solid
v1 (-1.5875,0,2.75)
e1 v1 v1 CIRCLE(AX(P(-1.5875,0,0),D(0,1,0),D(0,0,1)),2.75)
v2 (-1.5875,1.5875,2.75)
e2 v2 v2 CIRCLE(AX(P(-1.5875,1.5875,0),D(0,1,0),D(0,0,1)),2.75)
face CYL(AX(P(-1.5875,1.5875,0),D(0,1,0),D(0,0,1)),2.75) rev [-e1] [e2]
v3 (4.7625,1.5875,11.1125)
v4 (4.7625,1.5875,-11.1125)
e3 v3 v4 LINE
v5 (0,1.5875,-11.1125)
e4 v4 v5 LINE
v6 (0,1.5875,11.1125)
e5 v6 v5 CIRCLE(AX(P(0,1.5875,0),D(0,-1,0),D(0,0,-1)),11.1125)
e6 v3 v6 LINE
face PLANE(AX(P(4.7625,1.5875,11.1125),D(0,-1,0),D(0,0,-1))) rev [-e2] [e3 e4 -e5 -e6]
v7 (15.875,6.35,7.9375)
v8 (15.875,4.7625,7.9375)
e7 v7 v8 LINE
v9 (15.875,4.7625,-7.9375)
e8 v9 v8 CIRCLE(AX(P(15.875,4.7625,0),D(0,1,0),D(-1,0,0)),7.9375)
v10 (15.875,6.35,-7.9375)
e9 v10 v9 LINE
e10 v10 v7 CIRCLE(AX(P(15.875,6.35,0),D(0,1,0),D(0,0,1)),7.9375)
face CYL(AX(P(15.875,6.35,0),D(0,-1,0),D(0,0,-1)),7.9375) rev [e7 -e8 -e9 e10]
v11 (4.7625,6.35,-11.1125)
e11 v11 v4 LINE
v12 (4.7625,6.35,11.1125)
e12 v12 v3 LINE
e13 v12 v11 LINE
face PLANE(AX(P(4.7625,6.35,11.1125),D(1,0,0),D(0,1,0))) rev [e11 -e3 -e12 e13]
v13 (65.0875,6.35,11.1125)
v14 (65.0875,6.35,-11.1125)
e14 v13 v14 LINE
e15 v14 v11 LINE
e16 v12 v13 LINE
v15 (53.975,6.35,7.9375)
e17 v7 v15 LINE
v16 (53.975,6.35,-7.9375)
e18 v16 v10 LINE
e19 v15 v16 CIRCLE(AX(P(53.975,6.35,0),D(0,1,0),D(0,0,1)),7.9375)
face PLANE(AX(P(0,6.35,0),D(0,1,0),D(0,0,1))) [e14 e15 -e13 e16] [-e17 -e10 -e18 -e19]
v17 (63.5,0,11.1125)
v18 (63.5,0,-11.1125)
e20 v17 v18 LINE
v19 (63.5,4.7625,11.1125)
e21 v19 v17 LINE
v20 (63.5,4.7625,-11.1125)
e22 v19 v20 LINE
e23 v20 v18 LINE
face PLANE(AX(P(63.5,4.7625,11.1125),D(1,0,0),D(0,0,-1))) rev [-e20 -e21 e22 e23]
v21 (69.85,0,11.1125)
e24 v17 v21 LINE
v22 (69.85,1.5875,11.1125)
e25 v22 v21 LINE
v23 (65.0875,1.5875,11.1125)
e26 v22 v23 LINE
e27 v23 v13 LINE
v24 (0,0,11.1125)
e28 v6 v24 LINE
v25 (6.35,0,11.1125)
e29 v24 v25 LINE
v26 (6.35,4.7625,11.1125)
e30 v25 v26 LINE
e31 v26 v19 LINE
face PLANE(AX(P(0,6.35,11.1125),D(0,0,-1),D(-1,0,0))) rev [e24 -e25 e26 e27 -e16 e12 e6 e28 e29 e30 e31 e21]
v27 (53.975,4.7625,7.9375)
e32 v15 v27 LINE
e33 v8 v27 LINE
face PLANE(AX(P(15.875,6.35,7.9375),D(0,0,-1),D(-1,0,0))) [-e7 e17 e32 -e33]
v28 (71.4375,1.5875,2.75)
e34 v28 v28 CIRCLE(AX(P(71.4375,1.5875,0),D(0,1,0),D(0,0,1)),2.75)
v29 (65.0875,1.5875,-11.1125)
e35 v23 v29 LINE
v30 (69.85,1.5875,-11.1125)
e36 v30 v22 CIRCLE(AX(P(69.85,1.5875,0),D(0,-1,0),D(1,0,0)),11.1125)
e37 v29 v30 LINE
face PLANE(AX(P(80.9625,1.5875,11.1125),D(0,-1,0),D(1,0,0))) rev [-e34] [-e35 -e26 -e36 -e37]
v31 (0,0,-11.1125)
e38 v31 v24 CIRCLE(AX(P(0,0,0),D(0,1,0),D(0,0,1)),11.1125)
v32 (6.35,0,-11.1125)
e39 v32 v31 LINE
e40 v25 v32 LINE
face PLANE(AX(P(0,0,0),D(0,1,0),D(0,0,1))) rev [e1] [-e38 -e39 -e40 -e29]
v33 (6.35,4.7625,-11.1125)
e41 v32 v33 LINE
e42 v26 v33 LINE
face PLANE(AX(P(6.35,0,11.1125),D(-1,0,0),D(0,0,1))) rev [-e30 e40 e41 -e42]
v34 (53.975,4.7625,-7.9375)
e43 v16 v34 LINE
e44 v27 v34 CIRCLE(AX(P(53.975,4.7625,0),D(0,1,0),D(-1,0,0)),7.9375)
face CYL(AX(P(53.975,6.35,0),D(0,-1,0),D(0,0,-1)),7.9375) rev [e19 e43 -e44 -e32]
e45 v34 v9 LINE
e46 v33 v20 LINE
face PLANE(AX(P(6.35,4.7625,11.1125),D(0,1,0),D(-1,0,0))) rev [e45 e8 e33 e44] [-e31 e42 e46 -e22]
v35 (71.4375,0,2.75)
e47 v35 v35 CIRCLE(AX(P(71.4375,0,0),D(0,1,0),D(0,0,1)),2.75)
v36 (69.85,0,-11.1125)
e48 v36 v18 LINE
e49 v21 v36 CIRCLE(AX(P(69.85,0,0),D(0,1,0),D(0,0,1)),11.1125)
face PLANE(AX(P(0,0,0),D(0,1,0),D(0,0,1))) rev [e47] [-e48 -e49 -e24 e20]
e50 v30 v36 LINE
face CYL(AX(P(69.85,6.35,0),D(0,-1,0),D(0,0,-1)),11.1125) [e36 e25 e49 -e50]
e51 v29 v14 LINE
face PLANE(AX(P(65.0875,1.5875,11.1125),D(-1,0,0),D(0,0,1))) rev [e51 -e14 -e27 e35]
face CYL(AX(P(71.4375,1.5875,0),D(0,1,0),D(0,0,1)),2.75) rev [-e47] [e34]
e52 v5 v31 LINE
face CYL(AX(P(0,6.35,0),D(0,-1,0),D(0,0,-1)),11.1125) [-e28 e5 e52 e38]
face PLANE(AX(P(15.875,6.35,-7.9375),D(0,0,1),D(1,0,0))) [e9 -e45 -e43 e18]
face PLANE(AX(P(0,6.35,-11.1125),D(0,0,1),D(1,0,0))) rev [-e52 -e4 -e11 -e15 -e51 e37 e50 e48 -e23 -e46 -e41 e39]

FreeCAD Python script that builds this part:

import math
import FreeCAD as App
import Part
import Sketcher

V = App.Vector
Q = App.Units.Quantity

doc = App.newDocument("Part")
body = doc.addObject("PartDesign::Body", "Body")

# Sketch on XZ plane
sketch1 = body.newObject("Sketcher::SketchObject", "Sketch")
sketch1.AttachmentSupport = (doc.getObject("XZ_Plane"), [""])
sketch1.MapMode = "FlatFace"
sketch1.addGeometry(Part.LineSegment(V(69.85, -11.1125, 0), V(0, -11.1125, 0)), False)
sketch1.addGeometry(Part.ArcOfCircle(Part.Circle(V(0, 0, 0), V(0, 0, 1), 11.1125), math.radians(90), math.radians(270)), False)
sketch1.addGeometry(Part.LineSegment(V(0, 11.1125, 0), V(69.85, 11.1125, 0)), False)
sketch1.addGeometry(Part.ArcOfCircle(Part.Circle(V(69.85, 0, 0), V(0, 0, 1), 11.1125), math.radians(-90), math.radians(90)), False)
sketch1.addGeometry(Part.LineSegment(V(15.875, -7.9375, 0), V(53.975, -7.9375, 0)), False)
sketch1.addGeometry(Part.ArcOfCircle(Part.Circle(V(53.975, 0, 0), V(0, 0, 1), 7.9375), math.radians(-90), math.radians(90)), False)
sketch1.addGeometry(Part.LineSegment(V(53.975, 7.9375, 0), V(15.875, 7.9375, 0)), False)
sketch1.addGeometry(Part.ArcOfCircle(Part.Circle(V(15.875, 0, 0), V(0, 0, 1), 7.9375), math.radians(90), math.radians(270)), False)
sketch1.addConstraint(Sketcher.Constraint("Tangent", 0, 2, 1, 2))
sketch1.addConstraint(Sketcher.Constraint("Tangent", 1, 1, 2, 1))
sketch1.addConstraint(Sketcher.Constraint("Tangent", 2, 2, 3, 2))
sketch1.addConstraint(Sketcher.Constraint("Tangent", 3, 1, 0, 1))
sketch1.addConstraint(Sketcher.Constraint("Tangent", 4, 2, 5, 1))
sketch1.addConstraint(Sketcher.Constraint("Tangent", 5, 2, 6, 1))
sketch1.addConstraint(Sketcher.Constraint("Tangent", 6, 2, 7, 1))
sketch1.addConstraint(Sketcher.Constraint("Tangent", 7, 2, 4, 1))
sketch1.addConstraint(Sketcher.Constraint("Horizontal", 0))
sketch1.addConstraint(Sketcher.Constraint("Horizontal", 2))
sketch1.addConstraint(Sketcher.Constraint("Horizontal", 4))
sketch1.addConstraint(Sketcher.Constraint("Horizontal", 6))
sketch1.addConstraint(Sketcher.Constraint("Coincident", 1, 3, -1, 1))
sketch1.addConstraint(Sketcher.Constraint("PointOnObject", 5, 3, -1))
sketch1.addConstraint(Sketcher.Constraint("DistanceX", 4, 1, 4, 2, Q("1.5 in")))
sketch1.addConstraint(Sketcher.Constraint("Radius", 1, Q("0.4375 in")))
sketch1.addConstraint(Sketcher.Constraint("Radius", 5, Q("0.3125 in")))
sketch1.addConstraint(Sketcher.Constraint("DistanceX", 0, 2, 0, 1, Q("2.75 in")))
sketch1.addConstraint(Sketcher.Constraint("DistanceX", -1, 1, 5, 3, Q("2.125 in")))
pad1 = body.newObject("PartDesign::Pad", "Pad")
pad1.Profile = sketch1
pad1.Length = Q("0.25 in")
pad1.Reversed = True

# Sketch on XY plane
sketch2 = body.newObject("Sketcher::SketchObject", "Sketch001")
sketch2.AttachmentSupport = (doc.getObject("XY_Plane"), [""])
sketch2.MapMode = "FlatFace"
sketch2.AttachmentOffset = App.Placement(V(0, 0, -0.4375 * 25.4), App.Rotation())
sketch2.addGeometry(Part.LineSegment(V(63.5, 4.7625, 0), V(63.5, 0, 0)), False)
sketch2.addGeometry(Part.LineSegment(V(63.5, 0, 0), V(6.35, 0, 0)), False)
sketch2.addGeometry(Part.LineSegment(V(6.35, 0, 0), V(6.35, 4.7625, 0)), False)
sketch2.addGeometry(Part.LineSegment(V(6.35, 4.7625, 0), V(63.5, 4.7625, 0)), False)
sketch2.addGeometry(Part.LineSegment(V(80.9625, 6.35, 0), V(80.9625, 1.5875, 0)), False)
sketch2.addGeometry(Part.LineSegment(V(80.9625, 1.5875, 0), V(65.0875, 1.5875, 0)), False)
sketch2.addGeometry(Part.LineSegment(V(65.0875, 1.5875, 0), V(65.0875, 6.35, 0)), False)
sketch2.addGeometry(Part.LineSegment(V(65.0875, 6.35, 0), V(80.9625, 6.35, 0)), False)
sketch2.addGeometry(Part.LineSegment(V(4.7625, 6.35, 0), V(4.7625, 1.5875, 0)), False)
sketch2.addGeometry(Part.LineSegment(V(4.7625, 1.5875, 0), V(-11.1125, 1.5875, 0)), False)
sketch2.addGeometry(Part.LineSegment(V(-11.1125, 1.5875, 0), V(-11.1125, 6.35, 0)), False)
sketch2.addGeometry(Part.LineSegment(V(-11.1125, 6.35, 0), V(4.7625, 6.35, 0)), False)
sketch2.addConstraint(Sketcher.Constraint("Coincident", 0, 2, 1, 1))
sketch2.addConstraint(Sketcher.Constraint("Coincident", 1, 2, 2, 1))
sketch2.addConstraint(Sketcher.Constraint("Coincident", 2, 2, 3, 1))
sketch2.addConstraint(Sketcher.Constraint("Coincident", 3, 2, 0, 1))
sketch2.addConstraint(Sketcher.Constraint("Coincident", 4, 2, 5, 1))
sketch2.addConstraint(Sketcher.Constraint("Coincident", 5, 2, 6, 1))
sketch2.addConstraint(Sketcher.Constraint("Coincident", 6, 2, 7, 1))
sketch2.addConstraint(Sketcher.Constraint("Coincident", 7, 2, 4, 1))
sketch2.addConstraint(Sketcher.Constraint("Coincident", 8, 2, 9, 1))
sketch2.addConstraint(Sketcher.Constraint("Coincident", 9, 2, 10, 1))
sketch2.addConstraint(Sketcher.Constraint("Coincident", 10, 2, 11, 1))
sketch2.addConstraint(Sketcher.Constraint("Coincident", 11, 2, 8, 1))
sketch2.addConstraint(Sketcher.Constraint("Vertical", 0))
sketch2.addConstraint(Sketcher.Constraint("Horizontal", 1))
sketch2.addConstraint(Sketcher.Constraint("Vertical", 2))
sketch2.addConstraint(Sketcher.Constraint("Horizontal", 3))
sketch2.addConstraint(Sketcher.Constraint("Vertical", 4))
sketch2.addConstraint(Sketcher.Constraint("Horizontal", 5))
sketch2.addConstraint(Sketcher.Constraint("Vertical", 6))
sketch2.addConstraint(Sketcher.Constraint("Horizontal", 7))
sketch2.addConstraint(Sketcher.Constraint("Vertical", 8))
sketch2.addConstraint(Sketcher.Constraint("Horizontal", 9))
sketch2.addConstraint(Sketcher.Constraint("Vertical", 10))
sketch2.addConstraint(Sketcher.Constraint("Horizontal", 11))
sketch2.addConstraint(Sketcher.Constraint("PointOnObject", 0, 2, -1))
sketch2.addConstraint(Sketcher.Constraint("Horizontal", 5, 2, 8, 2))
sketch2.addConstraint(Sketcher.Constraint("Horizontal", 7, 2, 10, 2))
sketch2.addConstraint(Sketcher.Constraint("Equal", 7, 9))
sketch2.addConstraint(Sketcher.Constraint("Equal", 2, 4))
sketch2.addConstraint(Sketcher.Constraint("DistanceX", 1, 2, 1, 1, Q("2.25 in")))
sketch2.addConstraint(Sketcher.Constraint("DistanceX", -1, 1, 0, 2, Q("2.5 in")))
sketch2.addConstraint(Sketcher.Constraint("DistanceX", 5, 2, 5, 1, Q("0.625 in")))
sketch2.addConstraint(Sketcher.Constraint("DistanceY", 0, 2, 0, 1, Q("0.1875 in")))
sketch2.addConstraint(Sketcher.Constraint("DistanceY", -1, 1, 6, 2, Q("0.25 in")))
sketch2.addConstraint(Sketcher.Constraint("DistanceX", -1, 1, 4, 2, Q("3.1875 in")))
sketch2.addConstraint(Sketcher.Constraint("DistanceX", -1, 1, 8, 2, Q("0.1875 in")))
pocket1 = body.newObject("PartDesign::Pocket", "Pocket")
pocket1.Profile = sketch2
pocket1.Type = "ThroughAll"
pocket1.Reversed = True

# Sketch on XZ plane
sketch3 = body.newObject("Sketcher::SketchObject", "Sketch002")
sketch3.AttachmentSupport = (doc.getObject("XZ_Plane"), [""])
sketch3.MapMode = "FlatFace"
sketch3.AttachmentOffset = App.Placement(V(0, 0, -0.0625 * 25.4), App.Rotation())
sketch3.addGeometry(Part.Circle(V(-1.5875, 0, 0), V(0, 0, 1), 2.75), False)
sketch3.addGeometry(Part.Circle(V(71.4375, 0, 0), V(0, 0, 1), 2.75), False)
sketch3.addConstraint(Sketcher.Constraint("Equal", 0, 1))
sketch3.addConstraint(Sketcher.Constraint("PointOnObject", 0, 3, -1))
sketch3.addConstraint(Sketcher.Constraint("PointOnObject", 1, 3, -1))
sketch3.addConstraint(Sketcher.Constraint("Diameter", 0, Q("5.5 mm")))
sketch3.addConstraint(Sketcher.Constraint("DistanceX", 0, 3, -1, 1, Q("0.0625 in")))
sketch3.addConstraint(Sketcher.Constraint("DistanceX", -1, 1, 1, 3, Q("2.8125 in")))
doc.recompute()
hole = body.newObject("PartDesign::Hole", "Hole")
hole.Profile = sketch3
hole.ThreadType = "None"
hole.Diameter = 5.5
hole.DepthType = "ThroughAll"
hole.Reversed = True

doc.recompute()
